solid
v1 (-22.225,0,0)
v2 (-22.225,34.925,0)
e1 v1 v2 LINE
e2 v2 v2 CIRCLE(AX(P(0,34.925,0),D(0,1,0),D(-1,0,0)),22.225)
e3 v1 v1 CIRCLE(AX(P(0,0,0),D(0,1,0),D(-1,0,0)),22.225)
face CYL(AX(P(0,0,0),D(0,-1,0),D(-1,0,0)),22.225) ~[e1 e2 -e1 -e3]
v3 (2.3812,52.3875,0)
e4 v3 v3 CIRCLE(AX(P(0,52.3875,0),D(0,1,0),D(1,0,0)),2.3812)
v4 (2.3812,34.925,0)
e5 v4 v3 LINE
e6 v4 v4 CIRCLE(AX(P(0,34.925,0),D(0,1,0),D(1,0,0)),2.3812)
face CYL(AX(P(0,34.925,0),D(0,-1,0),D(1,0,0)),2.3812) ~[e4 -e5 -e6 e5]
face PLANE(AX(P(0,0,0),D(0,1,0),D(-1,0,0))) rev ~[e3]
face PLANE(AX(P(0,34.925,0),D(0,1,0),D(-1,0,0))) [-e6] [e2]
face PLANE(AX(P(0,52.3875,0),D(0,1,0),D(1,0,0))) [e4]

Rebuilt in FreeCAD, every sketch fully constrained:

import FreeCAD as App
import Part
import Sketcher
from FreeCAD import Vector
Q = App.Units.Quantity

doc = App.newDocument("Part")
body = doc.addObject("PartDesign::Body", "Body")

# Sketch on XZ plane
sketch1 = doc.addObject("Sketcher::SketchObject", "Sketch")
body.addObject(sketch1)
sketch1.AttachmentSupport = (doc.XZ_Plane, [""])
sketch1.MapMode = "FlatFace"
sketch1.addGeometry(Part.Circle(Vector(0, 0, 0), Vector(0, 0, 1), 22), False)
sketch1.addConstraint(Sketcher.Constraint("Coincident", 0, 3, -1, 1))
sketch1.addConstraint(Sketcher.Constraint("Diameter", 0, Q("1.75 in")))
pad1 = doc.addObject("PartDesign::Pad", "Pad")
body.addObject(pad1)
pad1.Profile = sketch1
pad1.Length = Q("1.375 in")
pad1.Reversed = True

# Sketch on XZ plane
sketch2 = doc.addObject("Sketcher::SketchObject", "Sketch001")
body.addObject(sketch2)
sketch2.AttachmentSupport = (doc.XZ_Plane, [""])
sketch2.MapMode = "FlatFace"
sketch2.AttachmentOffset = App.Placement(Vector(0, 0, -1.375 * 25.4), App.Rotation())
sketch2.addGeometry(Part.Circle(Vector(0, 0, 0), Vector(0, 0, 1), 2.4), False)
sketch2.addConstraint(Sketcher.Constraint("Coincident", 0, 3, -1, 1))
sketch2.addConstraint(Sketcher.Constraint("Diameter", 0, Q("0.1875 in")))
pad2 = doc.addObject("PartDesign::Pad", "Pad001")
body.addObject(pad2)
pad2.Profile = sketch2
pad2.Length = Q("0.6875 in")
pad2.Reversed = True

doc.recompute()
